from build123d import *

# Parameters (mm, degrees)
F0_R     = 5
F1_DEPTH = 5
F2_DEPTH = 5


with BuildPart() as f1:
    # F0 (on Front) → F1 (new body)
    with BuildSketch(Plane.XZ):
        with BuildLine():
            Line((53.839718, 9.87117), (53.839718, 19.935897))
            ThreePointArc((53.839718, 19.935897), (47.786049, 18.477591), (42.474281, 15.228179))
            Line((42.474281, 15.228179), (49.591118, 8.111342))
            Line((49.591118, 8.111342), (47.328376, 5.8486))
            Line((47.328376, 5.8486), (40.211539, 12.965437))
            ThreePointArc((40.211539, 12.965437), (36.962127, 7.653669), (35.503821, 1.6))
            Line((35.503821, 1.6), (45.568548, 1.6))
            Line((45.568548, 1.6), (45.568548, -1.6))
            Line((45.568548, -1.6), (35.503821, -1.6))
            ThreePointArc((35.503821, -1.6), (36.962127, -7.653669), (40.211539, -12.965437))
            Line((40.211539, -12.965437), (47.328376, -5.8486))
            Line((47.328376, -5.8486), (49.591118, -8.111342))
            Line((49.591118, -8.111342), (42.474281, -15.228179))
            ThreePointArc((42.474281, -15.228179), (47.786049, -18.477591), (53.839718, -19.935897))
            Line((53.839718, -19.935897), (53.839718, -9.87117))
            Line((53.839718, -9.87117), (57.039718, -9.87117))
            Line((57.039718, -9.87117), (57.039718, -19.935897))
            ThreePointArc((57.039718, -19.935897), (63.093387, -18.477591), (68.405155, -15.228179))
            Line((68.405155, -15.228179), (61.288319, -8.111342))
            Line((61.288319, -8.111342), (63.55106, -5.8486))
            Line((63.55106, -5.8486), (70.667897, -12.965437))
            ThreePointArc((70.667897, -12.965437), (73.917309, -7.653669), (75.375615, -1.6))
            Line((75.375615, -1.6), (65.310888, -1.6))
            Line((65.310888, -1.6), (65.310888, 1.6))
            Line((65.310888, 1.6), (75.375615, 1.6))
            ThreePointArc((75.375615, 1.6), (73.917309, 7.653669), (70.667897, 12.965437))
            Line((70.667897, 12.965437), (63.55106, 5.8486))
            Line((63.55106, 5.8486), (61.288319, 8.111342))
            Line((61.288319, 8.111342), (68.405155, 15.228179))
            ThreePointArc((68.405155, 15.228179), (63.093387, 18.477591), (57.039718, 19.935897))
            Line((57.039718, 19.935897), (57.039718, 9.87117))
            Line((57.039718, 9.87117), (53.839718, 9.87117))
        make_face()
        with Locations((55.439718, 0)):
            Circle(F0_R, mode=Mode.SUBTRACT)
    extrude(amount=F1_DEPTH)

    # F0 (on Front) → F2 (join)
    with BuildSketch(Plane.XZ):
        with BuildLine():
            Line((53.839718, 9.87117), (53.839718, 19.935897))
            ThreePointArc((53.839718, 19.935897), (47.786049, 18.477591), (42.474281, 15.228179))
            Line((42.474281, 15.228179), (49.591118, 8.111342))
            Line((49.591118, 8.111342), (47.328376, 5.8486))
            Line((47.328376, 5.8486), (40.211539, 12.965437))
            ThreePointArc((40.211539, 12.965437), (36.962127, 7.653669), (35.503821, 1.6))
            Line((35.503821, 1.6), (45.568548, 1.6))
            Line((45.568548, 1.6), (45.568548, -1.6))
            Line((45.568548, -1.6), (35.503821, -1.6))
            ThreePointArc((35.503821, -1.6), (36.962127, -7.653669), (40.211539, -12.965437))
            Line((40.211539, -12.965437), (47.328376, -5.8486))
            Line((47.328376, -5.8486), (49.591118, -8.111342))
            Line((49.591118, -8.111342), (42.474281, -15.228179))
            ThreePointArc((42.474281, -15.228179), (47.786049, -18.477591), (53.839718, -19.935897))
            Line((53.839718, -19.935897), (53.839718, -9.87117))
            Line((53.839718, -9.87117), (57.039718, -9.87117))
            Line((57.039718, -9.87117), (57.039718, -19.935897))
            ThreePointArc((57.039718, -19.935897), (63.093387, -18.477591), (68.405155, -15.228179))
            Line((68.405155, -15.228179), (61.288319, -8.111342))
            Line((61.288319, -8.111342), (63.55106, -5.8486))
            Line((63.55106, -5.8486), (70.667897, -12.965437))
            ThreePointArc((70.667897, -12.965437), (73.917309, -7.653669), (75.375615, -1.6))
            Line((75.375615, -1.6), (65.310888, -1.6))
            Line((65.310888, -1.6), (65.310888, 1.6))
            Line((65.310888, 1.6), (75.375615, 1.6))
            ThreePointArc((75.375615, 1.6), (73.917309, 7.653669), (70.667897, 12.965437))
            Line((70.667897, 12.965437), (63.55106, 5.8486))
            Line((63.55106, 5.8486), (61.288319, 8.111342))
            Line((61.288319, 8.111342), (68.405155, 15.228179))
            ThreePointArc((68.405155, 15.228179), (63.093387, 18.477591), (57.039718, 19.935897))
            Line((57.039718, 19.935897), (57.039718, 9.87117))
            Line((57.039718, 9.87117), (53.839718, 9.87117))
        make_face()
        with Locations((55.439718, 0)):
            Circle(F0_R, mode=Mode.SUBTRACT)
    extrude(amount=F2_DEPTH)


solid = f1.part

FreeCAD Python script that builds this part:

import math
import FreeCAD as App
import Part
import Sketcher

V = App.Vector

doc = App.newDocument("Part")
body = doc.addObject("PartDesign::Body", "Body")

sketch1 = body.newObject("Sketcher::SketchObject", "Sketch")
sketch1.AttachmentSupport = (doc.getObject("XZ_Plane"), [""])
sketch1.MapMode = "FlatFace"
sketch1.addGeometry([
    Part.LineSegment(V(53.839718, 9.87117, 0), V(53.839718, 19.935897, 0)),
    Part.ArcOfCircle(Part.Circle(V(55.439712, 0.000013, 0), V(0, 0, 1), 19.999986), math.radians(94.588553), math.radians(130.411446)),
    Part.LineSegment(V(42.474281, 15.228179, 0), V(49.591118, 8.111342, 0)),
    Part.LineSegment(V(49.591118, 8.111342, 0), V(47.328376, 5.8486, 0)),
    Part.LineSegment(V(47.328376, 5.8486, 0), V(40.211539, 12.965437, 0)),
    Part.ArcOfCircle(Part.Circle(V(55.439705, 0.000006, 0), V(0, 0, 1), 19.999986), math.radians(139.588554), math.radians(175.411447)),
    Part.LineSegment(V(35.503821, 1.6, 0), V(45.568548, 1.6, 0)),
    Part.LineSegment(V(45.568548, 1.6, 0), V(45.568548, -1.6, 0)),
    Part.LineSegment(V(45.568548, -1.6, 0), V(35.503821, -1.6, 0)),
    Part.ArcOfCircle(Part.Circle(V(55.439705, -0.000006, 0), V(0, 0, 1), 19.999986), math.radians(-175.411447), math.radians(-139.588554)),
    Part.LineSegment(V(40.211539, -12.965437, 0), V(47.328376, -5.8486, 0)),
    Part.LineSegment(V(47.328376, -5.8486, 0), V(49.591118, -8.111342, 0)),
    Part.LineSegment(V(49.591118, -8.111342, 0), V(42.474281, -15.228179, 0)),
    Part.ArcOfCircle(Part.Circle(V(55.439712, -0.000013, 0), V(0, 0, 1), 19.999986), math.radians(-130.411446), math.radians(-94.588553)),
    Part.LineSegment(V(53.839718, -19.935897, 0), V(53.839718, -9.87117, 0)),
    Part.LineSegment(V(53.839718, -9.87117, 0), V(57.039718, -9.87117, 0)),
    Part.LineSegment(V(57.039718, -9.87117, 0), V(57.039718, -19.935897, 0)),
    Part.ArcOfCircle(Part.Circle(V(55.439724, -0.000013, 0), V(0, 0, 1), 19.999986), math.radians(-85.411447), math.radians(-49.588554)),
    Part.LineSegment(V(68.405155, -15.228179, 0), V(61.288319, -8.111342, 0)),
    Part.LineSegment(V(61.288319, -8.111342, 0), V(63.55106, -5.8486, 0)),
    Part.LineSegment(V(63.55106, -5.8486, 0), V(70.667897, -12.965437, 0)),
    Part.ArcOfCircle(Part.Circle(V(55.439731, -0.000006, 0), V(0, 0, 1), 19.999986), math.radians(-40.411446), math.radians(-4.588553)),
    Part.LineSegment(V(75.375615, -1.6, 0), V(65.310888, -1.6, 0)),
    Part.LineSegment(V(65.310888, -1.6, 0), V(65.310888, 1.6, 0)),
    Part.LineSegment(V(65.310888, 1.6, 0), V(75.375615, 1.6, 0)),
    Part.ArcOfCircle(Part.Circle(V(55.439731, 0.000006, 0), V(0, 0, 1), 19.999986), math.radians(4.588553), math.radians(40.411446)),
    Part.LineSegment(V(70.667897, 12.965437, 0), V(63.55106, 5.8486, 0)),
    Part.LineSegment(V(63.55106, 5.8486, 0), V(61.288319, 8.111342, 0)),
    Part.LineSegment(V(61.288319, 8.111342, 0), V(68.405155, 15.228179, 0)),
    Part.ArcOfCircle(Part.Circle(V(55.439724, 0.000013, 0), V(0, 0, 1), 19.999986), math.radians(49.588554), math.radians(85.411447)),
    Part.LineSegment(V(57.039718, 19.935897, 0), V(57.039718, 9.87117, 0)),
    Part.LineSegment(V(57.039718, 9.87117, 0), V(53.839718, 9.87117, 0)),
    Part.Circle(V(55.439718, 0, 0), V(0, 0, 1), 5),
], False)
sketch1.addConstraint([
    Sketcher.Constraint("Coincident", 0, 2, 1, 1),
    Sketcher.Constraint("Coincident", 1, 2, 2, 1),
    Sketcher.Constraint("Coincident", 2, 2, 3, 1),
    Sketcher.Constraint("Coincident", 3, 2, 4, 1),
    Sketcher.Constraint("Coincident", 4, 2, 5, 1),
    Sketcher.Constraint("Coincident", 5, 2, 6, 1),
    Sketcher.Constraint("Coincident", 6, 2, 7, 1),
    Sketcher.Constraint("Coincident", 7, 2, 8, 1),
    Sketcher.Constraint("Coincident", 8, 2, 9, 1),
    Sketcher.Constraint("Coincident", 9, 2, 10, 1),
    Sketcher.Constraint("Coincident", 10, 2, 11, 1),
    Sketcher.Constraint("Coincident", 11, 2, 12, 1),
    Sketcher.Constraint("Coincident", 12, 2, 13, 1),
    Sketcher.Constraint("Coincident", 13, 2, 14, 1),
    Sketcher.Constraint("Coincident", 14, 2, 15, 1),
    Sketcher.Constraint("Coincident", 15, 2, 16, 1),
    Sketcher.Constraint("Coincident", 16, 2, 17, 1),
    Sketcher.Constraint("Coincident", 17, 2, 18, 1),
    Sketcher.Constraint("Coincident", 18, 2, 19, 1),
    Sketcher.Constraint("Coincident", 19, 2, 20, 1),
    Sketcher.Constraint("Coincident", 20, 2, 21, 1),
    Sketcher.Constraint("Coincident", 21, 2, 22, 1),
    Sketcher.Constraint("Coincident", 22, 2, 23, 1),
    Sketcher.Constraint("Coincident", 23, 2, 24, 1),
    Sketcher.Constraint("Coincident", 24, 2, 25, 1),
    Sketcher.Constraint("Coincident", 25, 2, 26, 1),
    Sketcher.Constraint("Coincident", 26, 2, 27, 1),
    Sketcher.Constraint("Coincident", 27, 2, 28, 1),
    Sketcher.Constraint("Coincident", 28, 2, 29, 1),
    Sketcher.Constraint("Coincident", 29, 2, 30, 1),
    Sketcher.Constraint("Coincident", 30, 2, 31, 1),
    Sketcher.Constraint("Coincident", 31, 2, 0, 1),
    Sketcher.Constraint("Vertical", 0),
    Sketcher.Constraint("Horizontal", 6),
    Sketcher.Constraint("Vertical", 7),
    Sketcher.Constraint("Horizontal", 8),
    Sketcher.Constraint("Vertical", 14),
    Sketcher.Constraint("Horizontal", 15),
    Sketcher.Constraint("Vertical", 16),
    Sketcher.Constraint("Horizontal", 22),
    Sketcher.Constraint("Vertical", 23),
    Sketcher.Constraint("Horizontal", 24),
    Sketcher.Constraint("Vertical", 30),
    Sketcher.Constraint("Horizontal", 31),
    Sketcher.Constraint("Equal", 1, 5),
    Sketcher.Constraint("Equal", 5, 9),
    Sketcher.Constraint("Equal", 9, 13),
    Sketcher.Constraint("Equal", 13, 17),
    Sketcher.Constraint("Equal", 17, 21),
    Sketcher.Constraint("Equal", 21, 25),
    Sketcher.Constraint("Equal", 25, 29),
    Sketcher.Constraint("Symmetric", 5, 3, 9, 3, -1),
    Sketcher.Constraint("Symmetric", 1, 3, 13, 3, -1),
    Sketcher.Constraint("Symmetric", 21, 3, 25, 3, -1),
    Sketcher.Constraint("Symmetric", 17, 3, 29, 3, -1),
    Sketcher.Constraint("Symmetric", 3, 2, 10, 2, -1),
    Sketcher.Constraint("Symmetric", 2, 2, 11, 2, -1),
    Sketcher.Constraint("Symmetric", 19, 2, 26, 2, -1),
    Sketcher.Constraint("Symmetric", 18, 2, 27, 2, -1),
    Sketcher.Constraint("Symmetric", 15, 2, 30, 2, -1),
    Sketcher.Constraint("PointOnObject", 32, 3, -1),
    Sketcher.Constraint("Perpendicular", 2, 3),
    Sketcher.Constraint("Perpendicular", 3, 4),
    Sketcher.Constraint("Perpendicular", 4, 10),
    Sketcher.Constraint("Perpendicular", 10, 11),
    Sketcher.Constraint("Perpendicular", 11, 12),
    Sketcher.Constraint("Perpendicular", 12, 18),
    Sketcher.Constraint("Perpendicular", 18, 19),
    Sketcher.Constraint("Perpendicular", 19, 20),
    Sketcher.Constraint("Perpendicular", 20, 26),
    Sketcher.Constraint("Perpendicular", 27, 28),
    Sketcher.Constraint("Horizontal", 13, 3, 17, 3),
    Sketcher.Constraint("Horizontal", 9, 3, 21, 3),
    Sketcher.Constraint("Horizontal", 13, 2, 16, 2),
    Sketcher.Constraint("Horizontal", 12, 2, 17, 2),
    Sketcher.Constraint("Horizontal", 11, 2, 18, 2),
    Sketcher.Constraint("Horizontal", 10, 2, 19, 2),
    Sketcher.Constraint("Horizontal", 9, 2, 20, 2),
    Sketcher.Constraint("Horizontal", 8, 2, 21, 2),
    Sketcher.Constraint("Horizontal", 6, 2, 23, 2),
    Sketcher.Constraint("Horizontal", 0, 2, 29, 2),
    Sketcher.Constraint("Vertical", 5, 2, 8, 2),
    Sketcher.Constraint("Equal", 8, 22),
    Sketcher.Constraint("Equal", 24, 0),
    Sketcher.Constraint("Equal", 31, 7),
    Sketcher.Constraint("Equal", 2, 4),
    Sketcher.Constraint("Diameter", 32, 10.0),
    Sketcher.Constraint("DistanceX", 15, 1, 15, 2, 3.2),
    Sketcher.Constraint("Distance", 3, 3.2),
    Sketcher.Constraint("DistanceX", 0, 2, 32, 3, 1.6),
    Sketcher.Constraint("Radius", 1, 19.999986),
    Sketcher.Constraint("DistanceY", -1, 1, 3, 2, 5.8486),
    Sketcher.Constraint("DistanceX", 2, 2, 32, 3, 5.8486),
    Sketcher.Constraint("DistanceX", 6, 1, 6, 2, 10.064727),
    Sketcher.Constraint("DistanceX", -1, 1, 21, 3, 55.439731),
    Sketcher.Constraint("DistanceX", -1, 1, 1, 2, 42.474281),
    Sketcher.Constraint("DistanceY", -1, 1, 1, 2, 15.228179),
    Sketcher.Constraint("DistanceY", 14, 2, -1, 1, 9.87117),
])
pad1 = body.newObject("PartDesign::Pad", "Pad")
pad1.Profile = sketch1
pad1.Length = 5

sketch2 = body.newObject("Sketcher::SketchObject", "Sketch001")
sketch2.AttachmentSupport = (doc.getObject("XZ_Plane"), [""])
sketch2.MapMode = "FlatFace"
sketch2.addGeometry([
    Part.LineSegment(V(53.839718, 9.87117, 0), V(53.839718, 19.935897, 0)),
    Part.ArcOfCircle(Part.Circle(V(55.439712, 0.000013, 0), V(0, 0, 1), 19.999986), math.radians(94.588553), math.radians(130.411446)),
    Part.LineSegment(V(42.474281, 15.228179, 0), V(49.591118, 8.111342, 0)),
    Part.LineSegment(V(49.591118, 8.111342, 0), V(47.328376, 5.8486, 0)),
    Part.LineSegment(V(47.328376, 5.8486, 0), V(40.211539, 12.965437, 0)),
    Part.ArcOfCircle(Part.Circle(V(55.439705, 0.000006, 0), V(0, 0, 1), 19.999986), math.radians(139.588554), math.radians(175.411447)),
    Part.LineSegment(V(35.503821, 1.6, 0), V(45.568548, 1.6, 0)),
    Part.LineSegment(V(45.568548, 1.6, 0), V(45.568548, -1.6, 0)),
    Part.LineSegment(V(45.568548, -1.6, 0), V(35.503821, -1.6, 0)),
    Part.ArcOfCircle(Part.Circle(V(55.439705, -0.000006, 0), V(0, 0, 1), 19.999986), math.radians(-175.411447), math.radians(-139.588554)),
    Part.LineSegment(V(40.211539, -12.965437, 0), V(47.328376, -5.8486, 0)),
    Part.LineSegment(V(47.328376, -5.8486, 0), V(49.591118, -8.111342, 0)),
    Part.LineSegment(V(49.591118, -8.111342, 0), V(42.474281, -15.228179, 0)),
    Part.ArcOfCircle(Part.Circle(V(55.439712, -0.000013, 0), V(0, 0, 1), 19.999986), math.radians(-130.411446), math.radians(-94.588553)),
    Part.LineSegment(V(53.839718, -19.935897, 0), V(53.839718, -9.87117, 0)),
    Part.LineSegment(V(53.839718, -9.87117, 0), V(57.039718, -9.87117, 0)),
    Part.LineSegment(V(57.039718, -9.87117, 0), V(57.039718, -19.935897, 0)),
    Part.ArcOfCircle(Part.Circle(V(55.439724, -0.000013, 0), V(0, 0, 1), 19.999986), math.radians(-85.411447), math.radians(-49.588554)),
    Part.LineSegment(V(68.405155, -15.228179, 0), V(61.288319, -8.111342, 0)),
    Part.LineSegment(V(61.288319, -8.111342, 0), V(63.55106, -5.8486, 0)),
    Part.LineSegment(V(63.55106, -5.8486, 0), V(70.667897, -12.965437, 0)),
    Part.ArcOfCircle(Part.Circle(V(55.439731, -0.000006, 0), V(0, 0, 1), 19.999986), math.radians(-40.411446), math.radians(-4.588553)),
    Part.LineSegment(V(75.375615, -1.6, 0), V(65.310888, -1.6, 0)),
    Part.LineSegment(V(65.310888, -1.6, 0), V(65.310888, 1.6, 0)),
    Part.LineSegment(V(65.310888, 1.6, 0), V(75.375615, 1.6, 0)),
    Part.ArcOfCircle(Part.Circle(V(55.439731, 0.000006, 0), V(0, 0, 1), 19.999986), math.radians(4.588553), math.radians(40.411446)),
    Part.LineSegment(V(70.667897, 12.965437, 0), V(63.55106, 5.8486, 0)),
    Part.LineSegment(V(63.55106, 5.8486, 0), V(61.288319, 8.111342, 0)),
    Part.LineSegment(V(61.288319, 8.111342, 0), V(68.405155, 15.228179, 0)),
    Part.ArcOfCircle(Part.Circle(V(55.439724, 0.000013, 0), V(0, 0, 1), 19.999986), math.radians(49.588554), math.radians(85.411447)),
    Part.LineSegment(V(57.039718, 19.935897, 0), V(57.039718, 9.87117, 0)),
    Part.LineSegment(V(57.039718, 9.87117, 0), V(53.839718, 9.87117, 0)),
    Part.Circle(V(55.439718, 0, 0), V(0, 0, 1), 5),
], False)
sketch2.addConstraint([
    Sketcher.Constraint("Coincident", 0, 2, 1, 1),
    Sketcher.Constraint("Coincident", 1, 2, 2, 1),
    Sketcher.Constraint("Coincident", 2, 2, 3, 1),
    Sketcher.Constraint("Coincident", 3, 2, 4, 1),
    Sketcher.Constraint("Coincident", 4, 2, 5, 1),
    Sketcher.Constraint("Coincident", 5, 2, 6, 1),
    Sketcher.Constraint("Coincident", 6, 2, 7, 1),
    Sketcher.Constraint("Coincident", 7, 2, 8, 1),
    Sketcher.Constraint("Coincident", 8, 2, 9, 1),
    Sketcher.Constraint("Coincident", 9, 2, 10, 1),
    Sketcher.Constraint("Coincident", 10, 2, 11, 1),
    Sketcher.Constraint("Coincident", 11, 2, 12, 1),
    Sketcher.Constraint("Coincident", 12, 2, 13, 1),
    Sketcher.Constraint("Coincident", 13, 2, 14, 1),
    Sketcher.Constraint("Coincident", 14, 2, 15, 1),
    Sketcher.Constraint("Coincident", 15, 2, 16, 1),
    Sketcher.Constraint("Coincident", 16, 2, 17, 1),
    Sketcher.Constraint("Coincident", 17, 2, 18, 1),
    Sketcher.Constraint("Coincident", 18, 2, 19, 1),
    Sketcher.Constraint("Coincident", 19, 2, 20, 1),
    Sketcher.Constraint("Coincident", 20, 2, 21, 1),
    Sketcher.Constraint("Coincident", 21, 2, 22, 1),
    Sketcher.Constraint("Coincident", 22, 2, 23, 1),
    Sketcher.Constraint("Coincident", 23, 2, 24, 1),
    Sketcher.Constraint("Coincident", 24, 2, 25, 1),
    Sketcher.Constraint("Coincident", 25, 2, 26, 1),
    Sketcher.Constraint("Coincident", 26, 2, 27, 1),
    Sketcher.Constraint("Coincident", 27, 2, 28, 1),
    Sketcher.Constraint("Coincident", 28, 2, 29, 1),
    Sketcher.Constraint("Coincident", 29, 2, 30, 1),
    Sketcher.Constraint("Coincident", 30, 2, 31, 1),
    Sketcher.Constraint("Coincident", 31, 2, 0, 1),
    Sketcher.Constraint("Vertical", 0),
    Sketcher.Constraint("Horizontal", 6),
    Sketcher.Constraint("Vertical", 7),
    Sketcher.Constraint("Horizontal", 8),
    Sketcher.Constraint("Vertical", 14),
    Sketcher.Constraint("Horizontal", 15),
    Sketcher.Constraint("Vertical", 16),
    Sketcher.Constraint("Horizontal", 22),
    Sketcher.Constraint("Vertical", 23),
    Sketcher.Constraint("Horizontal", 24),
    Sketcher.Constraint("Vertical", 30),
    Sketcher.Constraint("Horizontal", 31),
    Sketcher.Constraint("Equal", 1, 5),
    Sketcher.Constraint("Equal", 5, 9),
    Sketcher.Constraint("Equal", 9, 13),
    Sketcher.Constraint("Equal", 13, 17),
    Sketcher.Constraint("Equal", 17, 21),
    Sketcher.Constraint("Equal", 21, 25),
    Sketcher.Constraint("Equal", 25, 29),
    Sketcher.Constraint("Symmetric", 5, 3, 9, 3, -1),
    Sketcher.Constraint("Symmetric", 1, 3, 13, 3, -1),
    Sketcher.Constraint("Symmetric", 21, 3, 25, 3, -1),
    Sketcher.Constraint("Symmetric", 17, 3, 29, 3, -1),
    Sketcher.Constraint("Symmetric", 3, 2, 10, 2, -1),
    Sketcher.Constraint("Symmetric", 2, 2, 11, 2, -1),
    Sketcher.Constraint("Symmetric", 19, 2, 26, 2, -1),
    Sketcher.Constraint("Symmetric", 18, 2, 27, 2, -1),
    Sketcher.Constraint("Symmetric", 15, 2, 30, 2, -1),
    Sketcher.Constraint("PointOnObject", 32, 3, -1),
    Sketcher.Constraint("Perpendicular", 2, 3),
    Sketcher.Constraint("Perpendicular", 3, 4),
    Sketcher.Constraint("Perpendicular", 4, 10),
    Sketcher.Constraint("Perpendicular", 10, 11),
    Sketcher.Constraint("Perpendicular", 11, 12),
    Sketcher.Constraint("Perpendicular", 12, 18),
    Sketcher.Constraint("Perpendicular", 18, 19),
    Sketcher.Constraint("Perpendicular", 19, 20),
    Sketcher.Constraint("Perpendicular", 20, 26),
    Sketcher.Constraint("Perpendicular", 27, 28),
    Sketcher.Constraint("Horizontal", 13, 3, 17, 3),
    Sketcher.Constraint("Horizontal", 9, 3, 21, 3),
    Sketcher.Constraint("Horizontal", 13, 2, 16, 2),
    Sketcher.Constraint("Horizontal", 12, 2, 17, 2),
    Sketcher.Constraint("Horizontal", 11, 2, 18, 2),
    Sketcher.Constraint("Horizontal", 10, 2, 19, 2),
    Sketcher.Constraint("Horizontal", 9, 2, 20, 2),
    Sketcher.Constraint("Horizontal", 8, 2, 21, 2),
    Sketcher.Constraint("Horizontal", 6, 2, 23, 2),
    Sketcher.Constraint("Horizontal", 0, 2, 29, 2),
    Sketcher.Constraint("Vertical", 5, 2, 8, 2),
    Sketcher.Constraint("Equal", 8, 22),
    Sketcher.Constraint("Equal", 24, 0),
    Sketcher.Constraint("Equal", 31, 7),
    Sketcher.Constraint("Equal", 2, 4),
    Sketcher.Constraint("Diameter", 32, 10.0),
    Sketcher.Constraint("DistanceX", 15, 1, 15, 2, 3.2),
    Sketcher.Constraint("Distance", 3, 3.2),
    Sketcher.Constraint("DistanceX", 0, 2, 32, 3, 1.6),
    Sketcher.Constraint("Radius", 1, 19.999986),
    Sketcher.Constraint("DistanceY", -1, 1, 3, 2, 5.8486),
    Sketcher.Constraint("DistanceX", 2, 2, 32, 3, 5.8486),
    Sketcher.Constraint("DistanceX", 6, 1, 6, 2, 10.064727),
    Sketcher.Constraint("DistanceX", -1, 1, 21, 3, 55.439731),
    Sketcher.Constraint("DistanceX", -1, 1, 1, 2, 42.474281),
    Sketcher.Constraint("DistanceY", -1, 1, 1, 2, 15.228179),
    Sketcher.Constraint("DistanceY", 14, 2, -1, 1, 9.87117),
])
pad2 = body.newObject("PartDesign::Pad", "Pad001")
pad2.Profile = sketch2
pad2.Length = 5

doc.recompute()
